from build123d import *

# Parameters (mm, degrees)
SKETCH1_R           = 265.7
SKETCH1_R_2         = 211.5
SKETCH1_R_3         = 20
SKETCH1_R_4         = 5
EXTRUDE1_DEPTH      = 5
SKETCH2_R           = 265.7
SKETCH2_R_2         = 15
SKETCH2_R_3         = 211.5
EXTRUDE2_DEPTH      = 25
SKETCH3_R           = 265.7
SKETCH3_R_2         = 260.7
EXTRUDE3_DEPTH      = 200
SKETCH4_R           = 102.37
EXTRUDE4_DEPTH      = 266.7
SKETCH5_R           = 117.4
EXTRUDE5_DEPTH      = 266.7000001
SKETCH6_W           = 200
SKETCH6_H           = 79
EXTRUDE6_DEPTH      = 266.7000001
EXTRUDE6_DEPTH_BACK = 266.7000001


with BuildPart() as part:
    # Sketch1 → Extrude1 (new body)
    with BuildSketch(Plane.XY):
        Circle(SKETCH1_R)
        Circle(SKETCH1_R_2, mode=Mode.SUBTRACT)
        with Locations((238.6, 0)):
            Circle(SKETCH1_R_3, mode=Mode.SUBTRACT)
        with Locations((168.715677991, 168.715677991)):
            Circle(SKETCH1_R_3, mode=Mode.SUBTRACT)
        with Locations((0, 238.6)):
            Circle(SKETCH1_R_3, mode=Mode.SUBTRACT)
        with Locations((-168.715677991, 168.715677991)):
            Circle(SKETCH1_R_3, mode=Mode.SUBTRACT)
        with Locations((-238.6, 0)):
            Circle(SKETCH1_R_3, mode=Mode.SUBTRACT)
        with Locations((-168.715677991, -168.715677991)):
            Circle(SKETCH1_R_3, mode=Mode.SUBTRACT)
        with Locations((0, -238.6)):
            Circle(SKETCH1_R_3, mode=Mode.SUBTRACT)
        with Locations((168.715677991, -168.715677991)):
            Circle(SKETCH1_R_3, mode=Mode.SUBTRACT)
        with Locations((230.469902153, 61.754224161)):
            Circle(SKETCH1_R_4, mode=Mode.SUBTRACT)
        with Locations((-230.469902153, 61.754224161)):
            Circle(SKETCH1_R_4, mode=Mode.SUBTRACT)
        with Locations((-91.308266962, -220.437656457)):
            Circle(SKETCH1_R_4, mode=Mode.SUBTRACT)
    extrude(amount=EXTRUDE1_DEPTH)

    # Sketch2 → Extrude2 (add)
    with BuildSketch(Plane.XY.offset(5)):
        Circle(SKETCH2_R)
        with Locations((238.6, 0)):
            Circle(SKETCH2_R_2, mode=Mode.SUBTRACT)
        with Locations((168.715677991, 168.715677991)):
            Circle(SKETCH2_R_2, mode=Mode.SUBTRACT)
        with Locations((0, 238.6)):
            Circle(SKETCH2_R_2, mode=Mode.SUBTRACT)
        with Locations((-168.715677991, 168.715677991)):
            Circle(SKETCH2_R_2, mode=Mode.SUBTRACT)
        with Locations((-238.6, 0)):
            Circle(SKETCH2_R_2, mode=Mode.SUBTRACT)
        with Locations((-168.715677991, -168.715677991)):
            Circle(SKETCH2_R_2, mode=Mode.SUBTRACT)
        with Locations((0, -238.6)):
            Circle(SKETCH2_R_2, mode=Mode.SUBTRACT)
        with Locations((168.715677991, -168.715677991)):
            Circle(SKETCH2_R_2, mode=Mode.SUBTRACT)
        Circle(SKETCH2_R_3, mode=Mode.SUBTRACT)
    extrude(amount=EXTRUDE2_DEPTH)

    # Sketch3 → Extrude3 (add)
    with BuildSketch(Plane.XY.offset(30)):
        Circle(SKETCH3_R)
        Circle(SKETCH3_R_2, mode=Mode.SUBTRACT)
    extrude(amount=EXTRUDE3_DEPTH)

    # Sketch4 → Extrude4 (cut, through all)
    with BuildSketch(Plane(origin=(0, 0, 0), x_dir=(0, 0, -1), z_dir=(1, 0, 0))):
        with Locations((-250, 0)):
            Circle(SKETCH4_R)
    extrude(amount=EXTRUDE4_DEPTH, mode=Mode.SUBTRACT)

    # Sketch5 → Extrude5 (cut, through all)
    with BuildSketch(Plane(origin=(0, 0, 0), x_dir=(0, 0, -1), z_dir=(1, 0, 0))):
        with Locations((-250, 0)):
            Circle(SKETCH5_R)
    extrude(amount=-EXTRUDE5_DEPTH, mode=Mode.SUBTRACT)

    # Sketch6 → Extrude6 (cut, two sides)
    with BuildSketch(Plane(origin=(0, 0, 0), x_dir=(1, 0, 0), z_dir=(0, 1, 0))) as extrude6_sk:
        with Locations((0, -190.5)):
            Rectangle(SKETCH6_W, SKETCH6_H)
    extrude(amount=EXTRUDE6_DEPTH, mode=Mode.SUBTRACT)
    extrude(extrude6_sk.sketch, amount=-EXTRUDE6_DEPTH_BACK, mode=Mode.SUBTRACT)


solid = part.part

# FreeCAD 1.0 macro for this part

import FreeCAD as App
import Part
import Sketcher
from FreeCAD import Vector

doc = App.newDocument("Part")
body = doc.addObject("PartDesign::Body", "Body")

sketch1 = doc.addObject("Sketcher::SketchObject", "Sketch")
body.addObject(sketch1)
sketch1.AttachmentSupport = (doc.XY_Plane, [""])
sketch1.MapMode = "FlatFace"
sketch1.addGeometry(Part.Circle(Vector(0, 0, 0), Vector(0, 0, 1), 266), False)
sketch1.addGeometry(Part.Circle(Vector(-169, -169, 0), Vector(0, 0, 1), 20), False)
sketch1.addGeometry(Part.Circle(Vector(-91, -220, 0), Vector(0, 0, 1), 5), False)
sketch1.addGeometry(Part.Circle(Vector(0, -239, 0), Vector(0, 0, 1), 20), False)
sketch1.addGeometry(Part.Circle(Vector(169, -169, 0), Vector(0, 0, 1), 20), False)
sketch1.addGeometry(Part.Circle(Vector(-239, 0, 0), Vector(0, 0, 1), 20), False)
sketch1.addGeometry(Part.Circle(Vector(-230, 62, 0), Vector(0, 0, 1), 5), False)
sketch1.addGeometry(Part.Circle(Vector(-169, 169, 0), Vector(0, 0, 1), 20), False)
sketch1.addGeometry(Part.Circle(Vector(0, 0, 0), Vector(0, 0, 1), 212), False)
sketch1.addGeometry(Part.Circle(Vector(239, 0, 0), Vector(0, 0, 1), 20), False)
sketch1.addGeometry(Part.Circle(Vector(230, 62, 0), Vector(0, 0, 1), 5), False)
sketch1.addGeometry(Part.Circle(Vector(0, 239, 0), Vector(0, 0, 1), 20), False)
sketch1.addGeometry(Part.Circle(Vector(169, 169, 0), Vector(0, 0, 1), 20), False)
sketch1.addConstraint(Sketcher.Constraint("Coincident", 0, 3, -1, 1))
sketch1.addConstraint(Sketcher.Constraint("Coincident", 8, 3, -1, 1))
sketch1.addConstraint(Sketcher.Constraint("Equal", 1, 3))
sketch1.addConstraint(Sketcher.Constraint("Equal", 3, 4))
sketch1.addConstraint(Sketcher.Constraint("Equal", 4, 5))
sketch1.addConstraint(Sketcher.Constraint("Equal", 2, 6))
sketch1.addConstraint(Sketcher.Constraint("Equal", 5, 7))
sketch1.addConstraint(Sketcher.Constraint("Equal", 7, 9))
sketch1.addConstraint(Sketcher.Constraint("Equal", 6, 10))
sketch1.addConstraint(Sketcher.Constraint("Equal", 9, 11))
sketch1.addConstraint(Sketcher.Constraint("Equal", 11, 12))
sketch1.addConstraint(Sketcher.Constraint("Symmetric", 4, 3, 7, 3, -1, 1))
sketch1.addConstraint(Sketcher.Constraint("Symmetric", 5, 3, 9, 3, -1, 1))
sketch1.addConstraint(Sketcher.Constraint("Symmetric", 3, 3, 11, 3, -1, 1))
sketch1.addConstraint(Sketcher.Constraint("Symmetric", 1, 3, 12, 3, -1, 1))
sketch1.addConstraint(Sketcher.Constraint("Symmetric", 1, 3, 4, 3, -2))
sketch1.addConstraint(Sketcher.Constraint("Symmetric", 6, 3, 10, 3, -2))
sketch1.addConstraint(Sketcher.Constraint("PointOnObject", 3, 3, -2))
sketch1.addConstraint(Sketcher.Constraint("PointOnObject", 5, 3, -1))
sketch1.addConstraint(Sketcher.Constraint("Diameter", 1, 40.0))
sketch1.addConstraint(Sketcher.Constraint("Diameter", 2, 10.0))
sketch1.addConstraint(Sketcher.Constraint("Diameter", 8, 423.0))
sketch1.addConstraint(Sketcher.Constraint("Diameter", 0, 531.4))
sketch1.addConstraint(Sketcher.Constraint("DistanceY", 3, 3, -1, 1, 238.6))
sketch1.addConstraint(Sketcher.Constraint("DistanceX", 5, 3, -1, 1, 238.6))
sketch1.addConstraint(Sketcher.Constraint("DistanceX", 1, 3, 2, 3, 77.407411))
sketch1.addConstraint(Sketcher.Constraint("DistanceY", 2, 3, 1, 3, 51.721978))
sketch1.addConstraint(Sketcher.Constraint("DistanceY", 2, 3, 6, 3, 282.191881))
sketch1.addConstraint(Sketcher.Constraint("DistanceX", 1, 3, -1, 1, 168.715678))
sketch1.addConstraint(Sketcher.Constraint("DistanceY", 1, 3, -1, 1, 168.715678))
sketch1.addConstraint(Sketcher.Constraint("DistanceX", 6, 3, -1, 1, 230.469902))
pad1 = doc.addObject("PartDesign::Pad", "Pad")
body.addObject(pad1)
pad1.Profile = sketch1
pad1.Length = 5

sketch2 = doc.addObject("Sketcher::SketchObject", "Sketch001")
body.addObject(sketch2)
sketch2.AttachmentSupport = (doc.XY_Plane, [""])
sketch2.MapMode = "FlatFace"
sketch2.AttachmentOffset = App.Placement(Vector(0, 0, 5), App.Rotation())
sketch2.addGeometry(Part.Circle(Vector(0, 0, 0), Vector(0, 0, 1), 266), False)
sketch2.addGeometry(Part.Circle(Vector(-169, -169, 0), Vector(0, 0, 1), 15), False)
sketch2.addGeometry(Part.Circle(Vector(0, -239, 0), Vector(0, 0, 1), 15), False)
sketch2.addGeometry(Part.Circle(Vector(-239, 0, 0), Vector(0, 0, 1), 15), False)
sketch2.addGeometry(Part.Circle(Vector(0, 0, 0), Vector(0, 0, 1), 212), False)
sketch2.addGeometry(Part.Circle(Vector(169, -169, 0), Vector(0, 0, 1), 15), False)
sketch2.addGeometry(Part.Circle(Vector(239, 0, 0), Vector(0, 0, 1), 15), False)
sketch2.addGeometry(Part.Circle(Vector(-169, 169, 0), Vector(0, 0, 1), 15), False)
sketch2.addGeometry(Part.Circle(Vector(0, 239, 0), Vector(0, 0, 1), 15), False)
sketch2.addGeometry(Part.Circle(Vector(169, 169, 0), Vector(0, 0, 1), 15), False)
sketch2.addConstraint(Sketcher.Constraint("Coincident", 0, 3, -1, 1))
sketch2.addConstraint(Sketcher.Constraint("Coincident", 4, 3, -1, 1))
sketch2.addConstraint(Sketcher.Constraint("Equal", 1, 2))
sketch2.addConstraint(Sketcher.Constraint("Equal", 2, 3))
sketch2.addConstraint(Sketcher.Constraint("Equal", 3, 5))
sketch2.addConstraint(Sketcher.Constraint("Equal", 5, 6))
sketch2.addConstraint(Sketcher.Constraint("Equal", 6, 7))
sketch2.addConstraint(Sketcher.Constraint("Equal", 7, 8))
sketch2.addConstraint(Sketcher.Constraint("Equal", 8, 9))
sketch2.addConstraint(Sketcher.Constraint("Symmetric", 3, 3, 6, 3, -1, 1))
sketch2.addConstraint(Sketcher.Constraint("Symmetric", 5, 3, 7, 3, -1, 1))
sketch2.addConstraint(Sketcher.Constraint("Symmetric", 2, 3, 8, 3, -1, 1))
sketch2.addConstraint(Sketcher.Constraint("Symmetric", 1, 3, 9, 3, -1, 1))
sketch2.addConstraint(Sketcher.Constraint("Symmetric", 1, 3, 5, 3, -2))
sketch2.addConstraint(Sketcher.Constraint("PointOnObject", 2, 3, -2))
sketch2.addConstraint(Sketcher.Constraint("PointOnObject", 3, 3, -1))
sketch2.addConstraint(Sketcher.Constraint("Diameter", 1, 30.0))
sketch2.addConstraint(Sketcher.Constraint("Diameter", 4, 423.0))
sketch2.addConstraint(Sketcher.Constraint("Diameter", 0, 531.4))
sketch2.addConstraint(Sketcher.Constraint("DistanceY", 2, 3, -1, 1, 238.6))
sketch2.addConstraint(Sketcher.Constraint("DistanceX", 3, 3, -1, 1, 238.6))
sketch2.addConstraint(Sketcher.Constraint("DistanceX", 1, 3, -1, 1, 168.715678))
sketch2.addConstraint(Sketcher.Constraint("DistanceY", 1, 3, -1, 1, 168.715678))
pad2 = doc.addObject("PartDesign::Pad", "Pad001")
body.addObject(pad2)
pad2.Profile = sketch2
pad2.Length = 25

sketch3 = doc.addObject("Sketcher::SketchObject", "Sketch002")
body.addObject(sketch3)
sketch3.AttachmentSupport = (doc.XY_Plane, [""])
sketch3.MapMode = "FlatFace"
sketch3.AttachmentOffset = App.Placement(Vector(0, 0, 30), App.Rotation())
sketch3.addGeometry(Part.Circle(Vector(0, 0, 0), Vector(0, 0, 1), 266), False)
sketch3.addGeometry(Part.Circle(Vector(0, 0, 0), Vector(0, 0, 1), 261), False)
sketch3.addConstraint(Sketcher.Constraint("Coincident", 0, 3, -1, 1))
sketch3.addConstraint(Sketcher.Constraint("Coincident", 1, 3, -1, 1))
sketch3.addConstraint(Sketcher.Constraint("Diameter", 0, 531.4))
sketch3.addConstraint(Sketcher.Constraint("Diameter", 1, 521.4))
pad3 = doc.addObject("PartDesign::Pad", "Pad002")
body.addObject(pad3)
pad3.Profile = sketch3
pad3.Length = 200

sketch4 = doc.addObject("Sketcher::SketchObject", "Sketch003")
body.addObject(sketch4)
sketch4.AttachmentSupport = (doc.YZ_Plane, [""])
sketch4.MapMode = "FlatFace"
sketch4.addGeometry(Part.Circle(Vector(0, 250, 0), Vector(0, 0, 1), 102), False)
sketch4.addConstraint(Sketcher.Constraint("PointOnObject", 0, 3, -2))
sketch4.addConstraint(Sketcher.Constraint("Diameter", 0, 204.74))
sketch4.addConstraint(Sketcher.Constraint("DistanceY", -1, 1, 0, 3, 250.0))
pocket1 = doc.addObject("PartDesign::Pocket", "Pocket")
body.addObject(pocket1)
pocket1.Profile = sketch4
pocket1.Type = "ThroughAll"
pocket1.Reversed = True

sketch5 = doc.addObject("Sketcher::SketchObject", "Sketch004")
body.addObject(sketch5)
sketch5.AttachmentSupport = (doc.YZ_Plane, [""])
sketch5.MapMode = "FlatFace"
sketch5.addGeometry(Part.Circle(Vector(0, 250, 0), Vector(0, 0, 1), 117), False)
sketch5.addConstraint(Sketcher.Constraint("PointOnObject", 0, 3, -2))
sketch5.addConstraint(Sketcher.Constraint("Diameter", 0, 234.8))
sketch5.addConstraint(Sketcher.Constraint("DistanceY", -1, 1, 0, 3, 250.0))
pocket2 = doc.addObject("PartDesign::Pocket", "Pocket001")
body.addObject(pocket2)
pocket2.Profile = sketch5
pocket2.Type = "ThroughAll"

sketch6 = doc.addObject("Sketcher::SketchObject", "Sketch005")
body.addObject(sketch6)
sketch6.AttachmentSupport = (doc.XZ_Plane, [""])
sketch6.MapMode = "FlatFace"
sketch6.addGeometry(Part.LineSegment(Vector(-100, 151, 0), Vector(-100, 230, 0)), False)
sketch6.addGeometry(Part.LineSegment(Vector(-100, 230, 0), Vector(100, 230, 0)), False)
sketch6.addGeometry(Part.LineSegment(Vector(100, 230, 0), Vector(100, 151, 0)), False)
sketch6.addGeometry(Part.LineSegment(Vector(100, 151, 0), Vector(-100, 151, 0)), False)
sketch6.addConstraint(Sketcher.Constraint("Coincident", 0, 2, 1, 1))
sketch6.addConstraint(Sketcher.Constraint("Coincident", 1, 2, 2, 1))
sketch6.addConstraint(Sketcher.Constraint("Coincident", 2, 2, 3, 1))
sketch6.addConstraint(Sketcher.Constraint("Coincident", 3, 2, 0, 1))
sketch6.addConstraint(Sketcher.Constraint("Vertical", 0))
sketch6.addConstraint(Sketcher.Constraint("Horizontal", 1))
sketch6.addConstraint(Sketcher.Constraint("Vertical", 2))
sketch6.addConstraint(Sketcher.Constraint("Horizontal", 3))
sketch6.addConstraint(Sketcher.Constraint("DistanceX", 1, 1, 1, 2, 200.0))
sketch6.addConstraint(Sketcher.Constraint("DistanceY", 0, 1, 0, 2, 79.0))
sketch6.addConstraint(Sketcher.Constraint("DistanceX", 0, 2, -1, 1, 100.0))
sketch6.addConstraint(Sketcher.Constraint("DistanceY", -1, 1, 0, 2, 230.0))
pocket3 = doc.addObject("PartDesign::Pocket", "Pocket002")
body.addObject(pocket3)
pocket3.Profile = sketch6
pocket3.Type = "ThroughAll"
pocket3.Midplane = True

doc.recompute()
